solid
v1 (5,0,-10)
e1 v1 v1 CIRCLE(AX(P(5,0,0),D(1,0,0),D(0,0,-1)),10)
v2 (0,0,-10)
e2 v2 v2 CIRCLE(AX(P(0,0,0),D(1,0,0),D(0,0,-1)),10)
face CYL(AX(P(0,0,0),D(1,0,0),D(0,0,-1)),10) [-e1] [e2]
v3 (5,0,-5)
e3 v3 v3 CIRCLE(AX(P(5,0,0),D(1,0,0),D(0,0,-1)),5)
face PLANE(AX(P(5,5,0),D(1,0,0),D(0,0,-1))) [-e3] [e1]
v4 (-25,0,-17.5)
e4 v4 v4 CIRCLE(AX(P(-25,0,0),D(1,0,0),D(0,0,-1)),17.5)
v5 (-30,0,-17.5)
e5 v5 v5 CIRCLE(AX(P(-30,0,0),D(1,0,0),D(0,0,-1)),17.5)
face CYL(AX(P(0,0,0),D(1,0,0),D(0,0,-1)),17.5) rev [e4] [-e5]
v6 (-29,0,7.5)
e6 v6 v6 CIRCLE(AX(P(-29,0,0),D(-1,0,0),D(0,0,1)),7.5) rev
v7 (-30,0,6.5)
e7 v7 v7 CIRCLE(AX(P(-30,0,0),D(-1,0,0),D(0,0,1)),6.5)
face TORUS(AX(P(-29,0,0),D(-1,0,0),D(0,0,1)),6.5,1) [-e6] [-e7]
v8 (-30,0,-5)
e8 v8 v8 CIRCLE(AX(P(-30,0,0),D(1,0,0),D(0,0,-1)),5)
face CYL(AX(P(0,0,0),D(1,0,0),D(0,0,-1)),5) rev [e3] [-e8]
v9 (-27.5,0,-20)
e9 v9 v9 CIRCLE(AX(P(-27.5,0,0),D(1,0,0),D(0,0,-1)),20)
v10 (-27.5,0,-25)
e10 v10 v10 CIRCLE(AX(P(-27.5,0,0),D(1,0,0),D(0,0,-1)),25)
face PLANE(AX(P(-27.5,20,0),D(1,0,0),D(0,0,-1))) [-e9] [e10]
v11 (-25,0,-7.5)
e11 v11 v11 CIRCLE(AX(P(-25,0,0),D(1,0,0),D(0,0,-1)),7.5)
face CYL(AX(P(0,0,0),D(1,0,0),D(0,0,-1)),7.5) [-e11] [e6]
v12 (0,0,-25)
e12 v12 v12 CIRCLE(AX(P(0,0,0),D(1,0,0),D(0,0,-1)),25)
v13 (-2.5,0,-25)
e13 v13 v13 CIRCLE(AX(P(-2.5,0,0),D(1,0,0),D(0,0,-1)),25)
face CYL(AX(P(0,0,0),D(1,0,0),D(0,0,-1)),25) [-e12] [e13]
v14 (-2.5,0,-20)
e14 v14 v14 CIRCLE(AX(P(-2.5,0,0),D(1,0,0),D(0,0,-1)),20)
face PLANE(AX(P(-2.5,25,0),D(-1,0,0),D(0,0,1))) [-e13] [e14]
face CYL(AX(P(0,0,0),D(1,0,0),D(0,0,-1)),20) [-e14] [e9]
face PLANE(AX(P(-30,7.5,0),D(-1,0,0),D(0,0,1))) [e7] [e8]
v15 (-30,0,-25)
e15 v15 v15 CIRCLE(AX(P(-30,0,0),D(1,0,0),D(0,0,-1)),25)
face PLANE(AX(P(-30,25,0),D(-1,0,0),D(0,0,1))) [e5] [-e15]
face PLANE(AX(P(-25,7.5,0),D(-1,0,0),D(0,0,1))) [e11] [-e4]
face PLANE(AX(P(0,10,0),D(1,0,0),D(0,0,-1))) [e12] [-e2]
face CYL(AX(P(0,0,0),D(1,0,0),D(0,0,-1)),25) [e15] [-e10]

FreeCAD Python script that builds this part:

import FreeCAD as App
import Part
import Sketcher

V = App.Vector
Q = App.Units.Quantity


def edges_at(feature, points):
    """Names of the edges that pass closest to the given points."""
    edges = feature.Shape.Edges
    near = lambda p: min(range(len(edges)), key=lambda i: edges[i].distToShape(Part.Vertex(*p))[0])
    return sorted({f"Edge{near(p) + 1}" for p in points})

doc = App.newDocument("Part")
body = doc.addObject("PartDesign::Body", "Body")

# Sketch on XY plane
sketch1 = body.newObject("Sketcher::SketchObject", "Sketch")
sketch1.AttachmentSupport = (doc.getObject("XY_Plane"), [""])
sketch1.MapMode = "FlatFace"
sketch1.addGeometry([
    Part.LineSegment(V(0, 10, 0), V(0, 25, 0)),  # 0
    Part.LineSegment(V(0, 25, 0), V(-2.5, 25, 0)),  # 1
    Part.LineSegment(V(-2.5, 25, 0), V(-2.5, 20, 0)),  # 2
    Part.LineSegment(V(-2.5, 20, 0), V(-27.5, 20, 0)),  # 3
    Part.LineSegment(V(-27.5, 20, 0), V(-27.5, 25, 0)),  # 4
    Part.LineSegment(V(-27.5, 25, 0), V(-30, 25, 0)),  # 5
    Part.LineSegment(V(-30, 25, 0), V(-30, 17.5, 0)),  # 6
    Part.LineSegment(V(-30, 17.5, 0), V(-25, 17.5, 0)),  # 7
    Part.LineSegment(V(-25, 17.5, 0), V(-25, 7.5, 0)),  # 8
    Part.LineSegment(V(-25, 7.5, 0), V(-30, 7.5, 0)),  # 9
    Part.LineSegment(V(-30, 7.5, 0), V(-30, 5, 0)),  # 10
    Part.LineSegment(V(-30, 5, 0), V(5, 5, 0)),  # 11
    Part.LineSegment(V(5, 5, 0), V(5, 10, 0)),  # 12
    Part.LineSegment(V(5, 10, 0), V(0, 10, 0)),  # 13
], False)
sketch1.addConstraint([
    Sketcher.Constraint("Coincident", 0, 2, 1, 1),
    Sketcher.Constraint("Coincident", 1, 2, 2, 1),
    Sketcher.Constraint("Coincident", 2, 2, 3, 1),
    Sketcher.Constraint("Coincident", 3, 2, 4, 1),
    Sketcher.Constraint("Coincident", 4, 2, 5, 1),
    Sketcher.Constraint("Coincident", 5, 2, 6, 1),
    Sketcher.Constraint("Coincident", 6, 2, 7, 1),
    Sketcher.Constraint("Coincident", 7, 2, 8, 1),
    Sketcher.Constraint("Coincident", 8, 2, 9, 1),
    Sketcher.Constraint("Coincident", 9, 2, 10, 1),
    Sketcher.Constraint("Coincident", 10, 2, 11, 1),
    Sketcher.Constraint("Coincident", 11, 2, 12, 1),
    Sketcher.Constraint("Coincident", 12, 2, 13, 1),
    Sketcher.Constraint("Coincident", 13, 2, 0, 1),
    Sketcher.Constraint("Vertical", 0),
    Sketcher.Constraint("Horizontal", 1),
    Sketcher.Constraint("Vertical", 2),
    Sketcher.Constraint("Horizontal", 3),
    Sketcher.Constraint("Vertical", 4),
    Sketcher.Constraint("Horizontal", 5),
    Sketcher.Constraint("Vertical", 6),
    Sketcher.Constraint("Horizontal", 7),
    Sketcher.Constraint("Vertical", 8),
    Sketcher.Constraint("Horizontal", 9),
    Sketcher.Constraint("Vertical", 10),
    Sketcher.Constraint("Horizontal", 11),
    Sketcher.Constraint("Vertical", 12),
    Sketcher.Constraint("Horizontal", 13),
    Sketcher.Constraint("PointOnObject", 0, 2, -2),
    Sketcher.Constraint("Horizontal", 1, 2, 4, 2),
    Sketcher.Constraint("Vertical", 6, 2, 9, 2),
    Sketcher.Constraint("Equal", 1, 5),
    Sketcher.Constraint("Equal", 9, 13),
    Sketcher.Constraint("Equal", 13, 2),
    Sketcher.Constraint("Equal", 5, 10),
    Sketcher.Constraint("Equal", 4, 12),
    Sketcher.Constraint("DistanceX", 3, 2, 3, 1, Q("25 mm")),
    Sketcher.Constraint("DistanceX", 7, 1, 7, 2, Q("5 mm")),
    Sketcher.Constraint("DistanceX", 11, 1, 11, 2, Q("35 mm")),
    Sketcher.Constraint("DistanceY", 0, 1, 0, 2, Q("15 mm")),
    Sketcher.Constraint("DistanceY", 8, 2, 8, 1, Q("10 mm")),
    Sketcher.Constraint("DistanceY", -1, 1, 0, 2, Q("25 mm")),
])
revolution = body.newObject("PartDesign::Revolution", "Revolution")
revolution.Profile = sketch1
revolution.ReferenceAxis = (sketch1, ["H_Axis"])
revolution.Angle = 360
doc.recompute()

fillet = body.newObject("PartDesign::Fillet", "Fillet")
fillet.Base = (revolution, edges_at(revolution, [(-30, 0, 7.5)]))
fillet.Radius = 1

doc.recompute()
